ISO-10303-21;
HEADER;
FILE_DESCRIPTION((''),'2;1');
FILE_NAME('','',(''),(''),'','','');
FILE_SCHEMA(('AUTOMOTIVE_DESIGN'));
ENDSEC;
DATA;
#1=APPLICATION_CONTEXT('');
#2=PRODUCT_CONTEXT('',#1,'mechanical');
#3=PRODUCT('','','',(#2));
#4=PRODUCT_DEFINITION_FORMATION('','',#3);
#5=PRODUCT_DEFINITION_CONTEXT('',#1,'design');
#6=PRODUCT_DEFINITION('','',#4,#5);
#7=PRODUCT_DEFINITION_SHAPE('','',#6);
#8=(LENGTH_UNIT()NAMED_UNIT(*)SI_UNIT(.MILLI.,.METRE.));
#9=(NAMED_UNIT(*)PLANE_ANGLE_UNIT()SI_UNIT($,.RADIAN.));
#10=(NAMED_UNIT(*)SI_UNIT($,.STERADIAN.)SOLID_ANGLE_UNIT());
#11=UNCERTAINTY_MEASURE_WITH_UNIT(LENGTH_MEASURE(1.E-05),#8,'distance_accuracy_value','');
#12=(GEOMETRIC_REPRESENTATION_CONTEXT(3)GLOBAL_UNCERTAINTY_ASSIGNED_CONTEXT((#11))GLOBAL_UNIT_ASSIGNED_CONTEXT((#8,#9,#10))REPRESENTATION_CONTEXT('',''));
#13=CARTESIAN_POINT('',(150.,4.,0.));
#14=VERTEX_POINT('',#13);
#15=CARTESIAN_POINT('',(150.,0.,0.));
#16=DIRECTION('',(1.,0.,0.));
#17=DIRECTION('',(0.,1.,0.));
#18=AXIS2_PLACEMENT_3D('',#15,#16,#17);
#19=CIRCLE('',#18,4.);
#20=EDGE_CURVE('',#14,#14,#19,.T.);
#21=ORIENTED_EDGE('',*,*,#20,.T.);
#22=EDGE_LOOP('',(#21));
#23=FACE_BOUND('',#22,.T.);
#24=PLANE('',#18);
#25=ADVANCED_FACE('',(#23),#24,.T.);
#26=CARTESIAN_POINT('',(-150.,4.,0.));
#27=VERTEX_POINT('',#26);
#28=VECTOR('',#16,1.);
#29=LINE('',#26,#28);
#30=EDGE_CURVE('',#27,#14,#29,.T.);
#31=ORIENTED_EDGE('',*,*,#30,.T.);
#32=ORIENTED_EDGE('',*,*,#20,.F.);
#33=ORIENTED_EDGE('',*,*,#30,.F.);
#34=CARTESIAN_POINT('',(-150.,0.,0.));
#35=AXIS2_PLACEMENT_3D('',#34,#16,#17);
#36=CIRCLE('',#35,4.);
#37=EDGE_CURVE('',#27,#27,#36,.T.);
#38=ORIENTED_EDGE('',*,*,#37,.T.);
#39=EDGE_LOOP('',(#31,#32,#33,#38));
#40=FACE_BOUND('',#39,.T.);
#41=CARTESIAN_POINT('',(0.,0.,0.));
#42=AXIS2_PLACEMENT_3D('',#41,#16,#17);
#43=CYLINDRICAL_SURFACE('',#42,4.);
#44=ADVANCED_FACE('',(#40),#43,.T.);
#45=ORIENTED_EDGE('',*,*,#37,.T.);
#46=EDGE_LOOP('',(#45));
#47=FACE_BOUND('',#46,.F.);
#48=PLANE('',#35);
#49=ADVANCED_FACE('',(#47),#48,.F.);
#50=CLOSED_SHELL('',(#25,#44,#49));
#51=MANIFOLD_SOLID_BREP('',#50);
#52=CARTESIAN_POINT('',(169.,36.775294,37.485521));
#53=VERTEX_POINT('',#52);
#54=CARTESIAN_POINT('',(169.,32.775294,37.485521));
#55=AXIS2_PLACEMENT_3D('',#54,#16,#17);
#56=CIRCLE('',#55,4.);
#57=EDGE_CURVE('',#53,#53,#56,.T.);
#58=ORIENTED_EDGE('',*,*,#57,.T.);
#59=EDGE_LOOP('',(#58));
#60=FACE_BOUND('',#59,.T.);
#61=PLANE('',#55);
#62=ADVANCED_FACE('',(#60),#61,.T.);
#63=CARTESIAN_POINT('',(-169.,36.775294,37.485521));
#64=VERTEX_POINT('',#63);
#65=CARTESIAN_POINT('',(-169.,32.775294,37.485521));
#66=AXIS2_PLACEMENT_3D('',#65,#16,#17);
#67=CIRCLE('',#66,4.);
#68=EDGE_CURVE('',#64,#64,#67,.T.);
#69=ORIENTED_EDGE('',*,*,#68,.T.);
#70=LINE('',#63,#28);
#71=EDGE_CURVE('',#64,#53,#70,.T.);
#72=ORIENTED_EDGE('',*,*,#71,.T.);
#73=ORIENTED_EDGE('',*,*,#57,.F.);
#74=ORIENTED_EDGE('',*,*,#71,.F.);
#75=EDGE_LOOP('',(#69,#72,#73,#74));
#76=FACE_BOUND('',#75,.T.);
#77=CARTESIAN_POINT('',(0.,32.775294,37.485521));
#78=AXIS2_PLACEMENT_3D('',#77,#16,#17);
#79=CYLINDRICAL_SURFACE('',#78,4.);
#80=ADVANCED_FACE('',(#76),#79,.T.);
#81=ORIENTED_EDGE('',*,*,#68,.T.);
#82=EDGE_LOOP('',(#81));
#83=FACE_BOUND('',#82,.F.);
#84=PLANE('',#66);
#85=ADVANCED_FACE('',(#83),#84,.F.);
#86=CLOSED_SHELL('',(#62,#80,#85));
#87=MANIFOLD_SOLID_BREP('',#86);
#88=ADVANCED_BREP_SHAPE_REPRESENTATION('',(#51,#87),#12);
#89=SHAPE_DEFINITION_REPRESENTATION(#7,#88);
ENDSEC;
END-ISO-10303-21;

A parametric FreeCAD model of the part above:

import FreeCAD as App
import Part
import Sketcher

V = App.Vector

doc = App.newDocument("Part")
body = doc.addObject("PartDesign::Body", "Body")

sketch1 = doc.addObject("Sketcher::SketchObject", "Sketch")
body.addObject(sketch1)
sketch1.AttachmentSupport = (doc.YZ_Plane, [""])
sketch1.MapMode = "FlatFace"
sketch1.addGeometry(Part.Circle(V(0, 0, 0), V(0, 0, 1), 4), False)
sketch1.addConstraint([
    Sketcher.Constraint("Coincident", 0, 3, -1, 1),
    Sketcher.Constraint("Diameter", 0, 8.0),
])
pad1 = doc.addObject("PartDesign::Pad", "Pad")
body.addObject(pad1)
pad1.Profile = sketch1
pad1.Length = 300
pad1.Midplane = True
body2 = doc.addObject("PartDesign::Body", "Body001")

sketch2 = doc.addObject("Sketcher::SketchObject", "Sketch001")
body2.addObject(sketch2)
sketch2.AttachmentSupport = (doc.getObject("YZ_Plane001"), [""])
sketch2.MapMode = "FlatFace"
sketch2.addGeometry(Part.Circle(V(32.775294, 37.485521, 0), V(0, 0, 1), 4), False)
sketch2.addConstraint([
    Sketcher.Constraint("Diameter", 0, 8.0),
    Sketcher.Constraint("DistanceY", -1, 1, 0, 3, 37.485521),
    Sketcher.Constraint("DistanceX", -1, 1, 0, 3, 32.775294),
])
pad2 = doc.addObject("PartDesign::Pad", "Pad001")
body2.addObject(pad2)
pad2.Profile = sketch2
pad2.Length = 338
pad2.Midplane = True

doc.recompute()
